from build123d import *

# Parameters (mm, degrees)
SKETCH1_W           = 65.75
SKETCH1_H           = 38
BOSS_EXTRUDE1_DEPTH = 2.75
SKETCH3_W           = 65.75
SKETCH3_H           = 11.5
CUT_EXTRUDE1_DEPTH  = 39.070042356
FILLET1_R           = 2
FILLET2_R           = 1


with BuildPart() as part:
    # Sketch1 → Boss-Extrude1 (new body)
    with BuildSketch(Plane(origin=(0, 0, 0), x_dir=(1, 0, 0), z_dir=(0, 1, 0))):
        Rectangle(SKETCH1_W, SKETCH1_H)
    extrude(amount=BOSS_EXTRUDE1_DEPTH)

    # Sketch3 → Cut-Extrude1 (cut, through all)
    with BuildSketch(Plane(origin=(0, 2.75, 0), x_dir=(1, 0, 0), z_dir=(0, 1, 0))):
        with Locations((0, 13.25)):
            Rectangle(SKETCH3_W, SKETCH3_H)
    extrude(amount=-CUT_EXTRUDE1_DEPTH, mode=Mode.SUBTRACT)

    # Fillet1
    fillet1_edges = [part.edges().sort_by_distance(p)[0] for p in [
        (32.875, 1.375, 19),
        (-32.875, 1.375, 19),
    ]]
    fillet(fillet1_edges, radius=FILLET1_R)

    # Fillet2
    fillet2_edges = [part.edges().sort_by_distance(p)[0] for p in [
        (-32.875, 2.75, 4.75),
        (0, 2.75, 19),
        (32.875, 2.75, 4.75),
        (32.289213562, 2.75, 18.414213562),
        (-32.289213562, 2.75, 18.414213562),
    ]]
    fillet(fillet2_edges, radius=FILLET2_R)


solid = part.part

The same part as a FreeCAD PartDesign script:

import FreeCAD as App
import Part
import Sketcher

V = App.Vector
Q = App.Units.Quantity


def edges_at(feature, points):
    """Names of the edges that pass closest to the given points."""
    edges = feature.Shape.Edges
    near = lambda p: min(range(len(edges)), key=lambda i: edges[i].distToShape(Part.Vertex(*p))[0])
    return sorted({f"Edge{near(p) + 1}" for p in points})


def add_polygon(sketch, points):
    """Adds a closed chain of lines whose ends are joined by coincident constraints."""
    first, n = sketch.GeometryCount, len(points)
    for a, b in zip(points, points[1:] + points[:1]):
        sketch.addGeometry(Part.LineSegment(App.Vector(*a, 0), App.Vector(*b, 0)), False)
    for i in range(n):
        sketch.addConstraint(Sketcher.Constraint("Coincident", first + i, 2, first + (i + 1) % n, 1))

doc = App.newDocument("Part")
params = doc.addObject("Spreadsheet::Sheet", "Params")
for row, (alias, value) in enumerate([
    ("sketch1_height", "38 mm"),
    ("sketch1_width", "65.75 mm"),
    ("pad1_length", "2.75 mm"),
    ("sketch2_height", "11.5 mm"),
    ("sketch2_width", "65.75 mm"),
    ("fillet_radius", "2 mm"),
    ("fillet2_radius", "1 mm"),
], start=1):
    params.set(f"A{row}", alias)
    params.set(f"B{row}", "=" + value)
    params.setAlias(f"B{row}", alias)

body = doc.addObject("PartDesign::Body", "Body")

# Sketch on XZ plane
sketch1 = body.newObject("Sketcher::SketchObject", "Sketch")
sketch1.AttachmentSupport = (doc.getObject("XZ_Plane"), [""])
sketch1.MapMode = "FlatFace"
add_polygon(sketch1, [(-33, -19), (-33, 19), (33, 19), (33, -19)])  # lines 0-3
sketch1.addConstraint(Sketcher.Constraint("Vertical", 0))
sketch1.addConstraint(Sketcher.Constraint("Horizontal", 1))
sketch1.addConstraint(Sketcher.Constraint("Vertical", 2))
sketch1.addConstraint(Sketcher.Constraint("Horizontal", 3))
sketch1.addConstraint(Sketcher.Constraint("Symmetric", 0, 2, 2, 2, -1, 1))
sketch1.addConstraint(Sketcher.Constraint("DistanceY", 0, 1, 0, 2, Q("38 mm")))
sketch1.addConstraint(Sketcher.Constraint("DistanceX", 1, 1, 1, 2, Q("65.75 mm")))
sketch1.setExpression("Constraints[9]", "Params.sketch1_height")
sketch1.setExpression("Constraints[10]", "Params.sketch1_width")
pad1 = body.newObject("PartDesign::Pad", "Pad")
pad1.Profile = sketch1
pad1.setExpression("Length", "Params.pad1_length")
pad1.Reversed = True

# Sketch on XZ plane
sketch2 = body.newObject("Sketcher::SketchObject", "Sketch001")
sketch2.AttachmentSupport = (doc.getObject("XZ_Plane"), [""])
sketch2.MapMode = "FlatFace"
sketch2.AttachmentOffset = App.Placement(V(0, 0, -2.75), App.Rotation())
add_polygon(sketch2, [(-33, -19), (-33, -8), (33, -8), (33, -19)])  # lines 0-3
sketch2.addConstraint(Sketcher.Constraint("Vertical", 0))
sketch2.addConstraint(Sketcher.Constraint("Horizontal", 1))
sketch2.addConstraint(Sketcher.Constraint("Vertical", 2))
sketch2.addConstraint(Sketcher.Constraint("Horizontal", 3))
sketch2.addConstraint(Sketcher.Constraint("DistanceY", 0, 1, 0, 2, Q("11.5 mm")))
sketch2.addConstraint(Sketcher.Constraint("DistanceY", 2, 2, -1, 1, Q("19 mm")))
sketch2.addConstraint(Sketcher.Constraint("DistanceX", 1, 1, 1, 2, Q("65.75 mm")))
sketch2.addConstraint(Sketcher.Constraint("DistanceX", 0, 2, -1, 1, Q("32.875 mm")))
sketch2.setExpression("Constraints[8]", "Params.sketch2_height")
sketch2.setExpression("Constraints[10]", "Params.sketch2_width")
pocket1 = body.newObject("PartDesign::Pocket", "Pocket")
pocket1.Profile = sketch2
pocket1.Type = "ThroughAll"
pocket1.Reversed = True
doc.recompute()

fillet = body.newObject("PartDesign::Fillet", "Fillet")
fillet.Base = (pocket1, edges_at(pocket1, [(32.875, 1.375, 19), (-32.875, 1.375, 19)]))
fillet.setExpression("Radius", "Params.fillet_radius")
doc.recompute()

fillet2 = body.newObject("PartDesign::Fillet", "Fillet001")
fillet2.Base = (fillet, edges_at(fillet, [
    (-32.875, 2.75, 4.75),
    (0, 2.75, 19),
    (32.875, 2.75, 4.75),
    (32.289, 2.75, 18.414),
    (-32.289, 2.75, 18.414),
]))
fillet2.setExpression("Radius", "Params.fillet2_radius")

doc.recompute()
